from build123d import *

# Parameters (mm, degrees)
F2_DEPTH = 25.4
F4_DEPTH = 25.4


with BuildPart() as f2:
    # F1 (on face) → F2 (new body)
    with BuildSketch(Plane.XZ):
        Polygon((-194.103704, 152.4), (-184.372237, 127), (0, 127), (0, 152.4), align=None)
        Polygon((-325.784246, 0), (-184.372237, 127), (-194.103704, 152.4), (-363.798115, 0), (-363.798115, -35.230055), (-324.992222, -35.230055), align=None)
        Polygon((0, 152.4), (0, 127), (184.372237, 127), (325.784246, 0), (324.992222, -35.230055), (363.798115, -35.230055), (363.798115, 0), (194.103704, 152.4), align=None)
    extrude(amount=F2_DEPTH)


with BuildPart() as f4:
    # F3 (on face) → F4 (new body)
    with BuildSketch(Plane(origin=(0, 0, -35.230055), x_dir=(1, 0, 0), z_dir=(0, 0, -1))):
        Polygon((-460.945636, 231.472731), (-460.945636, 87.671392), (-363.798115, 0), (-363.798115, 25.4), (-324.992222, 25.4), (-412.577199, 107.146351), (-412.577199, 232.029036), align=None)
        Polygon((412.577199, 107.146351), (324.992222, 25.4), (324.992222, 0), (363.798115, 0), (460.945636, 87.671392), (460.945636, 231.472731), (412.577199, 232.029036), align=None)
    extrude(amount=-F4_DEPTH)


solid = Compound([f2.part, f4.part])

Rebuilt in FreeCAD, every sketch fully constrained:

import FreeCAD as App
import Part
import Sketcher
Q = App.Units.Quantity

doc = App.newDocument("Part")
body = doc.addObject("PartDesign::Body", "Body")

sketch1 = doc.addObject("Sketcher::SketchObject", "Sketch")
body.addObject(sketch1)
sketch1.AttachmentSupport = (doc.XZ_Plane, [""])
sketch1.MapMode = "FlatFace"
sketch1.addGeometry([
    Part.LineSegment(App.Vector(-184.372237, 127, 0), App.Vector(184.372237, 127, 0)),
    Part.LineSegment(App.Vector(184.372237, 127, 0), App.Vector(325.784246, 0, 0)),
    Part.LineSegment(App.Vector(325.784246, 0, 0), App.Vector(324.992222, -35.230055, 0)),
    Part.LineSegment(App.Vector(324.992222, -35.230055, 0), App.Vector(363.798115, -35.230055, 0)),
    Part.LineSegment(App.Vector(363.798115, -35.230055, 0), App.Vector(363.798115, 0, 0)),
    Part.LineSegment(App.Vector(363.798115, 0, 0), App.Vector(194.103704, 152.4, 0)),
    Part.LineSegment(App.Vector(194.103704, 152.4, 0), App.Vector(-194.103704, 152.4, 0)),
    Part.LineSegment(App.Vector(-194.103704, 152.4, 0), App.Vector(-363.798115, 0, 0)),
    Part.LineSegment(App.Vector(-363.798115, 0, 0), App.Vector(-363.798115, -35.230055, 0)),
    Part.LineSegment(App.Vector(-363.798115, -35.230055, 0), App.Vector(-324.992222, -35.230055, 0)),
    Part.LineSegment(App.Vector(-324.992222, -35.230055, 0), App.Vector(-325.784246, 0, 0)),
    Part.LineSegment(App.Vector(-325.784246, 0, 0), App.Vector(-184.372237, 127, 0)),
], False)
sketch1.addConstraint([
    Sketcher.Constraint("Coincident", 0, 2, 1, 1),
    Sketcher.Constraint("Coincident", 1, 2, 2, 1),
    Sketcher.Constraint("Coincident", 2, 2, 3, 1),
    Sketcher.Constraint("Coincident", 3, 2, 4, 1),
    Sketcher.Constraint("Coincident", 4, 2, 5, 1),
    Sketcher.Constraint("Coincident", 5, 2, 6, 1),
    Sketcher.Constraint("Coincident", 6, 2, 7, 1),
    Sketcher.Constraint("Coincident", 7, 2, 8, 1),
    Sketcher.Constraint("Coincident", 8, 2, 9, 1),
    Sketcher.Constraint("Coincident", 9, 2, 10, 1),
    Sketcher.Constraint("Coincident", 10, 2, 11, 1),
    Sketcher.Constraint("Coincident", 11, 2, 0, 1),
    Sketcher.Constraint("Horizontal", 0),
    Sketcher.Constraint("Horizontal", 3),
    Sketcher.Constraint("Vertical", 4),
    Sketcher.Constraint("Horizontal", 6),
    Sketcher.Constraint("Vertical", 8),
    Sketcher.Constraint("Horizontal", 9),
    Sketcher.Constraint("Symmetric", 4, 2, 7, 2, -1, 1),
    Sketcher.Constraint("Symmetric", 1, 2, 10, 2, -1, 1),
    Sketcher.Constraint("Symmetric", 2, 2, 9, 2, -2),
    Sketcher.Constraint("PointOnObject", 1, 2, -1),
    Sketcher.Constraint("PointOnObject", 4, 2, -1),
    Sketcher.Constraint("Parallel", 1, 5),
    Sketcher.Constraint("Parallel", 7, 11),
    Sketcher.Constraint("Equal", 5, 7),
    Sketcher.Constraint("DistanceY", -1, 1, 0, 2, Q("5 in")),
    Sketcher.Constraint("DistanceY", -1, 1, 5, 2, Q("6 in")),
    Sketcher.Constraint("DistanceX", 6, 2, 6, 1, 388.207408),
    Sketcher.Constraint("DistanceX", 0, 1, 0, 2, 368.744474),
    Sketcher.Constraint("DistanceX", 3, 1, 3, 2, 38.805893),
    Sketcher.Constraint("DistanceY", 4, 1, 4, 2, 35.230055),
    Sketcher.Constraint("DistanceX", 0, 2, 1, 2, 141.412009),
])
pad1 = doc.addObject("PartDesign::Pad", "Pad")
body.addObject(pad1)
pad1.Profile = sketch1
pad1.Length = Q("1 in")
body2 = doc.addObject("PartDesign::Body", "Body001")
body2.AllowCompound = True

sketch2 = doc.addObject("Sketcher::SketchObject", "Sketch001")
body2.addObject(sketch2)
sketch2.AttachmentSupport = (doc.getObject("XY_Plane001"), [""])
sketch2.MapMode = "FlatFace"
sketch2.AttachmentOffset = App.Placement(App.Vector(0, 0, -35.230055), App.Rotation())
sketch2.addGeometry([
    Part.LineSegment(App.Vector(-460.945636, -231.472731, 0), App.Vector(-460.945636, -87.671392, 0)),
    Part.LineSegment(App.Vector(-460.945636, -87.671392, 0), App.Vector(-363.798115, 0, 0)),
    Part.LineSegment(App.Vector(-363.798115, 0, 0), App.Vector(-363.798115, -25.4, 0)),
    Part.LineSegment(App.Vector(-363.798115, -25.4, 0), App.Vector(-324.992222, -25.4, 0)),
    Part.LineSegment(App.Vector(-324.992222, -25.4, 0), App.Vector(-412.577199, -107.146351, 0)),
    Part.LineSegment(App.Vector(-412.577199, -107.146351, 0), App.Vector(-412.577199, -232.029036, 0)),
    Part.LineSegment(App.Vector(-412.577199, -232.029036, 0), App.Vector(-460.945636, -231.472731, 0)),
    Part.LineSegment(App.Vector(412.577199, -107.146351, 0), App.Vector(324.992222, -25.4, 0)),
    Part.LineSegment(App.Vector(324.992222, -25.4, 0), App.Vector(324.992222, 0, 0)),
    Part.LineSegment(App.Vector(324.992222, 0, 0), App.Vector(363.798115, 0, 0)),
    Part.LineSegment(App.Vector(363.798115, 0, 0), App.Vector(460.945636, -87.671392, 0)),
    Part.LineSegment(App.Vector(460.945636, -87.671392, 0), App.Vector(460.945636, -231.472731, 0)),
    Part.LineSegment(App.Vector(460.945636, -231.472731, 0), App.Vector(412.577199, -232.029036, 0)),
    Part.LineSegment(App.Vector(412.577199, -232.029036, 0), App.Vector(412.577199, -107.146351, 0)),
], False)
sketch2.addConstraint([
    Sketcher.Constraint("Coincident", 0, 2, 1, 1),
    Sketcher.Constraint("Coincident", 1, 2, 2, 1),
    Sketcher.Constraint("Coincident", 2, 2, 3, 1),
    Sketcher.Constraint("Coincident", 3, 2, 4, 1),
    Sketcher.Constraint("Coincident", 4, 2, 5, 1),
    Sketcher.Constraint("Coincident", 5, 2, 6, 1),
    Sketcher.Constraint("Coincident", 6, 2, 0, 1),
    Sketcher.Constraint("Coincident", 7, 2, 8, 1),
    Sketcher.Constraint("Coincident", 8, 2, 9, 1),
    Sketcher.Constraint("Coincident", 9, 2, 10, 1),
    Sketcher.Constraint("Coincident", 10, 2, 11, 1),
    Sketcher.Constraint("Coincident", 11, 2, 12, 1),
    Sketcher.Constraint("Coincident", 12, 2, 13, 1),
    Sketcher.Constraint("Coincident", 13, 2, 7, 1),
    Sketcher.Constraint("Vertical", 0),
    Sketcher.Constraint("Vertical", 2),
    Sketcher.Constraint("Horizontal", 3),
    Sketcher.Constraint("Vertical", 5),
    Sketcher.Constraint("Vertical", 8),
    Sketcher.Constraint("Horizontal", 9),
    Sketcher.Constraint("Vertical", 11),
    Sketcher.Constraint("Vertical", 13),
    Sketcher.Constraint("Symmetric", 1, 2, 9, 2, -1, 1),
    Sketcher.Constraint("Symmetric", 3, 2, 7, 2, -2),
    Sketcher.Constraint("Symmetric", 0, 2, 10, 2, -2),
    Sketcher.Constraint("Symmetric", 5, 2, 12, 2, -2),
    Sketcher.Constraint("PointOnObject", 1, 2, -1),
    Sketcher.Constraint("Horizontal", 6, 2, 11, 2),
    Sketcher.Constraint("Horizontal", 4, 2, 13, 2),
    Sketcher.Constraint("DistanceY", 2, 2, 2, 1, Q("1 in")),
    Sketcher.Constraint("DistanceY", 0, 1, 0, 2, 143.801339),
    Sketcher.Constraint("DistanceX", 4, 2, -1, 1, 412.577199),
    Sketcher.Constraint("DistanceX", 3, 1, 3, 2, 38.805893),
    Sketcher.Constraint("DistanceY", 5, 2, 5, 1, 124.882685),
    Sketcher.Constraint("DistanceY", 0, 2, -1, 1, 87.671392),
    Sketcher.Constraint("DistanceY", 4, 2, -1, 1, 107.146351),
    Sketcher.Constraint("DistanceX", 0, 2, 1, 2, 97.147521),
    Sketcher.Constraint("DistanceX", 4, 2, 7, 2, 737.569421),
])
pad2 = doc.addObject("PartDesign::Pad", "Pad001")
body2.addObject(pad2)
pad2.Profile = sketch2
pad2.Length = Q("1 in")

doc.recompute()
